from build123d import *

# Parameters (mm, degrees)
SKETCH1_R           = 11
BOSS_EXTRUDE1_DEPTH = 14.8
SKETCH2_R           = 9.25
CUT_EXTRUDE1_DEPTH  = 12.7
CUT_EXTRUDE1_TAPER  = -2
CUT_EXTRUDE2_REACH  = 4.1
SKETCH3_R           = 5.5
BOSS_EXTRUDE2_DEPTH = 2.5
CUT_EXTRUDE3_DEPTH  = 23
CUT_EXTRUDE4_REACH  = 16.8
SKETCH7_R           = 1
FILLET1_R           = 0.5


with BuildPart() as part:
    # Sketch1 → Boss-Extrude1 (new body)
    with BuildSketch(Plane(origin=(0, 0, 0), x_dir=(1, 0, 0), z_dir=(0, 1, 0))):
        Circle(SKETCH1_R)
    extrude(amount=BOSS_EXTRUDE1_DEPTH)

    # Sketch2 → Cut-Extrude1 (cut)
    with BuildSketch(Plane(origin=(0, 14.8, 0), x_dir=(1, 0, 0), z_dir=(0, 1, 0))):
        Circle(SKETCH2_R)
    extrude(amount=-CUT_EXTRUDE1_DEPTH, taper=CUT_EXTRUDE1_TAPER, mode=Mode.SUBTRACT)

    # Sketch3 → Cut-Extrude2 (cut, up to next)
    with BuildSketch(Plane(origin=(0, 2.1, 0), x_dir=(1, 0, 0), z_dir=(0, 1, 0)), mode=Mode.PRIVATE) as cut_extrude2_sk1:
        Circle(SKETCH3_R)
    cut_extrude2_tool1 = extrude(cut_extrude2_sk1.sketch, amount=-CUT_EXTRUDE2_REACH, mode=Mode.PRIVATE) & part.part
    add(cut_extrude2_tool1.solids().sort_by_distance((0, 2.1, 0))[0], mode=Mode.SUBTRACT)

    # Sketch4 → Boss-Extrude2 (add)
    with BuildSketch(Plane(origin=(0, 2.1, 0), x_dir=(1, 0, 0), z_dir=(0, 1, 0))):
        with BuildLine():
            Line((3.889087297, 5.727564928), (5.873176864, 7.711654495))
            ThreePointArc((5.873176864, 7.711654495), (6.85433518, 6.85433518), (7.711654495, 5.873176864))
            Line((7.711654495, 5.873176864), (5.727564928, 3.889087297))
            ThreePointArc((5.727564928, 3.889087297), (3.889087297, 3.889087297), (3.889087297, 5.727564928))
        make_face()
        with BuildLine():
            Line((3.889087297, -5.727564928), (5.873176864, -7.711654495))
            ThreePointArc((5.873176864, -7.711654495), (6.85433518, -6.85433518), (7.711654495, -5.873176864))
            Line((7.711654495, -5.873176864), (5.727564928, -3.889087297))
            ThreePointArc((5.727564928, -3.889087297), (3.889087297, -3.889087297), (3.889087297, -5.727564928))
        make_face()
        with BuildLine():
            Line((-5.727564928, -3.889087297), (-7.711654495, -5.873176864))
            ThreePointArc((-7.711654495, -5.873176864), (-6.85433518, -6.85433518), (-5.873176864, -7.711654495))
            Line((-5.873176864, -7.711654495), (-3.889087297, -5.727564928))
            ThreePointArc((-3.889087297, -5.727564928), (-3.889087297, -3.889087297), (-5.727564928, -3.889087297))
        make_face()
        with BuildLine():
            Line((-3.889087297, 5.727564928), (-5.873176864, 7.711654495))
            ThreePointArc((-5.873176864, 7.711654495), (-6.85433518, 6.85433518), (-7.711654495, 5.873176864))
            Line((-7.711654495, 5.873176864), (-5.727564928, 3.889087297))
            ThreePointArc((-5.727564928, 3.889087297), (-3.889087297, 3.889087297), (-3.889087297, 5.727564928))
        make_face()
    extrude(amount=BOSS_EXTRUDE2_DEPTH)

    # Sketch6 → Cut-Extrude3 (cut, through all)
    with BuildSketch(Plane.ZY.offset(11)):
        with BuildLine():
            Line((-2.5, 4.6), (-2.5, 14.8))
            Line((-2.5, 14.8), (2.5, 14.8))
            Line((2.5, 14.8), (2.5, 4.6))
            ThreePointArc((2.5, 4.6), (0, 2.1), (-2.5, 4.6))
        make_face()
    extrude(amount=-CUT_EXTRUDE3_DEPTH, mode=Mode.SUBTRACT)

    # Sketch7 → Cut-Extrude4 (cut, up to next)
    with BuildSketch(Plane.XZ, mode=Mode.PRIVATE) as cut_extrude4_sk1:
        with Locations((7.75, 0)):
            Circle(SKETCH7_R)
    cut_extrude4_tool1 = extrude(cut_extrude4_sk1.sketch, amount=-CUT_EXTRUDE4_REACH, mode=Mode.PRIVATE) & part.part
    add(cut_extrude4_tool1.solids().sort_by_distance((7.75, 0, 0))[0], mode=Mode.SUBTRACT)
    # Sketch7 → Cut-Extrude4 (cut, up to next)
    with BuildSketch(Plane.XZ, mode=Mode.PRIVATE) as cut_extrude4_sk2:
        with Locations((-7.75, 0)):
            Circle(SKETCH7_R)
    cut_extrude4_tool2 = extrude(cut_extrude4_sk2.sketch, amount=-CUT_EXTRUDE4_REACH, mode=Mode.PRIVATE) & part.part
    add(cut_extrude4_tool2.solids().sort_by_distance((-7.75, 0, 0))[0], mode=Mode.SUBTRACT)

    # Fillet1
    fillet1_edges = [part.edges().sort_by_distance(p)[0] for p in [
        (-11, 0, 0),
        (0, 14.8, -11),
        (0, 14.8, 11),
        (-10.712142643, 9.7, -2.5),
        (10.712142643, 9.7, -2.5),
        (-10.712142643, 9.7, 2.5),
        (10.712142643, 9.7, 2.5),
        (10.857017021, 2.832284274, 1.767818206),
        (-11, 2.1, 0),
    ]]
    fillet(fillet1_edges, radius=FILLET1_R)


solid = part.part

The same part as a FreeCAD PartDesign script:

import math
import FreeCAD as App
import Part
import Sketcher

V = App.Vector


def edges_at(feature, points):
    """Names of the edges that pass closest to the given points."""
    edges = feature.Shape.Edges
    near = lambda p: min(range(len(edges)), key=lambda i: edges[i].distToShape(Part.Vertex(*p))[0])
    return sorted({f"Edge{near(p) + 1}" for p in points})

doc = App.newDocument("Part")
body = doc.addObject("PartDesign::Body", "Body")

# Sketch on XZ plane
sketch1 = body.newObject("Sketcher::SketchObject", "Sketch")
sketch1.AttachmentSupport = (doc.getObject("XZ_Plane"), [""])
sketch1.MapMode = "FlatFace"
sketch1.addGeometry(Part.Circle(V(0, 0, 0), V(0, 0, 1), 11), False)
sketch1.addConstraint([
    Sketcher.Constraint("Coincident", 0, 3, -1, 1),
    Sketcher.Constraint("Diameter", 0, 22.0),
])
pad1 = body.newObject("PartDesign::Pad", "Pad")
pad1.Profile = sketch1
pad1.Length = 14.8
pad1.Reversed = True

# Sketch on XZ plane
sketch2 = body.newObject("Sketcher::SketchObject", "Sketch001")
sketch2.AttachmentSupport = (doc.getObject("XZ_Plane"), [""])
sketch2.MapMode = "FlatFace"
sketch2.AttachmentOffset = App.Placement(V(0, 0, -14.8), App.Rotation())
sketch2.addGeometry(Part.Circle(V(0, 0, 0), V(0, 0, 1), 9.25), False)
sketch2.addConstraint([
    Sketcher.Constraint("Coincident", 0, 3, -1, 1),
    Sketcher.Constraint("Diameter", 0, 18.5),
])
pocket1 = body.newObject("PartDesign::Pocket", "Pocket")
pocket1.Profile = sketch2
pocket1.Length = 12.7
pocket1.Reversed = True
pocket1.TaperAngle = 2

# Sketch on XZ plane
sketch3 = body.newObject("Sketcher::SketchObject", "Sketch002")
sketch3.AttachmentSupport = (doc.getObject("XZ_Plane"), [""])
sketch3.MapMode = "FlatFace"
sketch3.AttachmentOffset = App.Placement(V(0, 0, -2.1), App.Rotation())
sketch3.addGeometry(Part.Circle(V(0, 0, 0), V(0, 0, 1), 5.5), False)
sketch3.addConstraint([
    Sketcher.Constraint("Coincident", 0, 3, -1, 1),
    Sketcher.Constraint("Diameter", 0, 11.0),
])
pocket2 = body.newObject("PartDesign::Pocket", "Pocket001")
pocket2.Profile = sketch3
pocket2.Type = "UpToFirst"
pocket2.Reversed = True

# Sketch on XZ plane
sketch4 = body.newObject("Sketcher::SketchObject", "Sketch003")
sketch4.AttachmentSupport = (doc.getObject("XZ_Plane"), [""])
sketch4.MapMode = "FlatFace"
sketch4.AttachmentOffset = App.Placement(V(0, 0, -2.1), App.Rotation())
sketch4.addGeometry([
    Part.LineSegment(V(5.873177, -7.711654, 0), V(3.889087, -5.727565, 0)),  # 0
    Part.ArcOfCircle(Part.Circle(V(4.808326, -4.808326, 0), V(0, 0, 1), 1.3), math.radians(45), math.radians(225)),  # 1
    Part.LineSegment(V(5.727565, -3.889087, 0), V(7.711654, -5.873177, 0)),  # 2
    Part.ArcOfCircle(Part.Circle(V(0, 0, 0), V(0, 0, 1), 9.693494), math.radians(-52.707192), math.radians(-37.292808)),  # 3
    Part.LineSegment(V(3.889087, 5.727565, 0), V(5.873177, 7.711654, 0)),  # 4
    Part.ArcOfCircle(Part.Circle(V(0, 0, 0), V(0, 0, 1), 9.693494), math.radians(37.292808), math.radians(52.707192)),  # 5
    Part.LineSegment(V(7.711654, 5.873177, 0), V(5.727565, 3.889087, 0)),  # 6
    Part.ArcOfCircle(Part.Circle(V(4.808326, 4.808326, 0), V(0, 0, 1), 1.3), math.radians(135), math.radians(315)),  # 7
    Part.LineSegment(V(-5.727565, 3.889087, 0), V(-7.711654, 5.873177, 0)),  # 8
    Part.ArcOfCircle(Part.Circle(V(0, 0, 0), V(0, 0, 1), 9.693494), math.radians(127.292808), math.radians(142.707192)),  # 9
    Part.LineSegment(V(-5.873177, 7.711654, 0), V(-3.889087, 5.727565, 0)),  # 10
    Part.ArcOfCircle(Part.Circle(V(-4.808326, 4.808326, 0), V(0, 0, 1), 1.3), math.radians(-135), math.radians(45)),  # 11
    Part.LineSegment(V(-3.889087, -5.727565, 0), V(-5.873177, -7.711654, 0)),  # 12
    Part.ArcOfCircle(Part.Circle(V(0, 0, 0), V(0, 0, 1), 9.693494), math.radians(-142.707192), math.radians(-127.292808)),  # 13
    Part.LineSegment(V(-7.711654, -5.873177, 0), V(-5.727565, -3.889087, 0)),  # 14
    Part.ArcOfCircle(Part.Circle(V(-4.808326, -4.808326, 0), V(0, 0, 1), 1.3), math.radians(-45), math.radians(135)),  # 15
], False)
sketch4.addConstraint([
    Sketcher.Constraint("Tangent", 0, 2, 1, 2),
    Sketcher.Constraint("Tangent", 1, 1, 2, 1),
    Sketcher.Constraint("Coincident", 2, 2, 3, 2),
    Sketcher.Constraint("Coincident", 3, 1, 0, 1),
    Sketcher.Constraint("Coincident", 4, 2, 5, 2),
    Sketcher.Constraint("Coincident", 5, 1, 6, 1),
    Sketcher.Constraint("Tangent", 6, 2, 7, 2),
    Sketcher.Constraint("Tangent", 7, 1, 4, 1),
    Sketcher.Constraint("Coincident", 8, 2, 9, 2),
    Sketcher.Constraint("Coincident", 9, 1, 10, 1),
    Sketcher.Constraint("Tangent", 10, 2, 11, 2),
    Sketcher.Constraint("Tangent", 11, 1, 8, 1),
    Sketcher.Constraint("Coincident", 12, 2, 13, 2),
    Sketcher.Constraint("Coincident", 13, 1, 14, 1),
    Sketcher.Constraint("Tangent", 14, 2, 15, 2),
    Sketcher.Constraint("Tangent", 15, 1, 12, 1),
    Sketcher.Constraint("Coincident", 3, 3, -1, 1),
    Sketcher.Constraint("Coincident", 5, 3, -1, 1),
    Sketcher.Constraint("Coincident", 9, 3, -1, 1),
    Sketcher.Constraint("Coincident", 13, 3, -1, 1),
    Sketcher.Constraint("Equal", 3, 5),
    Sketcher.Constraint("Equal", 1, 7),
    Sketcher.Constraint("Equal", 5, 9),
    Sketcher.Constraint("Equal", 7, 11),
    Sketcher.Constraint("Equal", 9, 13),
    Sketcher.Constraint("Equal", 11, 15),
    Sketcher.Constraint("Symmetric", 1, 3, 11, 3, -1, 1),
    Sketcher.Constraint("Symmetric", 7, 3, 15, 3, -1, 1),
    Sketcher.Constraint("Symmetric", 7, 3, 11, 3, -2),
    Sketcher.Constraint("Parallel", 0, 2),
    Sketcher.Constraint("Perpendicular", 2, 4),
    Sketcher.Constraint("Parallel", 4, 6),
    Sketcher.Constraint("Perpendicular", 6, 8),
    Sketcher.Constraint("Parallel", 8, 10),
    Sketcher.Constraint("Perpendicular", 10, 12),
    Sketcher.Constraint("Parallel", 12, 14),
    Sketcher.Constraint("Horizontal", 5, 1, 8, 2),
    Sketcher.Constraint("Equal", 0, 2),
    Sketcher.Constraint("Radius", 1, 1.3),
    Sketcher.Constraint("Radius", 3, 9.693494),
    Sketcher.Constraint("DistanceX", 1, 1, 2, 2, 1.98409),
])
pad2 = body.newObject("PartDesign::Pad", "Pad001")
pad2.Profile = sketch4
pad2.Length = 2.5
pad2.Reversed = True

# Sketch on YZ plane
sketch5 = body.newObject("Sketcher::SketchObject", "Sketch004")
sketch5.AttachmentSupport = (doc.getObject("YZ_Plane"), [""])
sketch5.MapMode = "FlatFace"
sketch5.AttachmentOffset = App.Placement(V(0, 0, -11), App.Rotation())
sketch5.addGeometry([
    Part.LineSegment(V(14.8, -2.5, 0), V(4.6, -2.5, 0)),
    Part.ArcOfCircle(Part.Circle(V(4.6, 0, 0), V(0, 0, 1), 2.5), math.radians(90), math.radians(270)),
    Part.LineSegment(V(4.6, 2.5, 0), V(14.8, 2.5, 0)),
    Part.LineSegment(V(14.8, 2.5, 0), V(14.8, -2.5, 0)),
], False)
sketch5.addConstraint([
    Sketcher.Constraint("Tangent", 0, 2, 1, 2),
    Sketcher.Constraint("Tangent", 1, 1, 2, 1),
    Sketcher.Constraint("Coincident", 2, 2, 3, 1),
    Sketcher.Constraint("Coincident", 3, 2, 0, 1),
    Sketcher.Constraint("Horizontal", 0),
    Sketcher.Constraint("Horizontal", 2),
    Sketcher.Constraint("Vertical", 3),
    Sketcher.Constraint("PointOnObject", 1, 3, -1),
    Sketcher.Constraint("Radius", 1, 2.5),
    Sketcher.Constraint("DistanceX", 0, 2, 0, 1, 10.2),
    Sketcher.Constraint("DistanceX", -1, 1, 1, 3, 4.6),
])
pocket3 = body.newObject("PartDesign::Pocket", "Pocket002")
pocket3.Profile = sketch5
pocket3.Type = "ThroughAll"
pocket3.Reversed = True

# Sketch on XZ plane
sketch6 = body.newObject("Sketcher::SketchObject", "Sketch005")
sketch6.AttachmentSupport = (doc.getObject("XZ_Plane"), [""])
sketch6.MapMode = "FlatFace"
sketch6.addGeometry(Part.Circle(V(7.75, 0, 0), V(0, 0, 1), 1), False)
sketch6.addConstraint([
    Sketcher.Constraint("PointOnObject", 0, 3, -1),
    Sketcher.Constraint("Diameter", 0, 2.0),
    Sketcher.Constraint("DistanceX", -1, 1, 0, 3, 7.75),
])
pocket4 = body.newObject("PartDesign::Pocket", "Pocket003")
pocket4.Profile = sketch6
pocket4.Type = "UpToFirst"

# Sketch on XZ plane
sketch7 = body.newObject("Sketcher::SketchObject", "Sketch006")
sketch7.AttachmentSupport = (doc.getObject("XZ_Plane"), [""])
sketch7.MapMode = "FlatFace"
sketch7.addGeometry(Part.Circle(V(-7.75, 0, 0), V(0, 0, 1), 1), False)
sketch7.addConstraint([
    Sketcher.Constraint("PointOnObject", 0, 3, -1),
    Sketcher.Constraint("Diameter", 0, 2.0),
    Sketcher.Constraint("DistanceX", 0, 3, -1, 1, 7.75),
])
pocket5 = body.newObject("PartDesign::Pocket", "Pocket004")
pocket5.Profile = sketch7
pocket5.Type = "UpToFirst"
doc.recompute()

fillet = body.newObject("PartDesign::Fillet", "Fillet")
fillet.Base = (pocket5, edges_at(pocket5, [
    (-11, 0, 0),
    (0, 14.8, -11),
    (0, 14.8, 11),
    (-10.712, 9.7, -2.5),
    (10.712, 9.7, -2.5),
    (-10.712, 9.7, 2.5),
    (10.712, 9.7, 2.5),
    (10.857, 2.832, 1.768),
    (-11, 2.1, 0),
]))
fillet.Radius = 0.5

doc.recompute()
